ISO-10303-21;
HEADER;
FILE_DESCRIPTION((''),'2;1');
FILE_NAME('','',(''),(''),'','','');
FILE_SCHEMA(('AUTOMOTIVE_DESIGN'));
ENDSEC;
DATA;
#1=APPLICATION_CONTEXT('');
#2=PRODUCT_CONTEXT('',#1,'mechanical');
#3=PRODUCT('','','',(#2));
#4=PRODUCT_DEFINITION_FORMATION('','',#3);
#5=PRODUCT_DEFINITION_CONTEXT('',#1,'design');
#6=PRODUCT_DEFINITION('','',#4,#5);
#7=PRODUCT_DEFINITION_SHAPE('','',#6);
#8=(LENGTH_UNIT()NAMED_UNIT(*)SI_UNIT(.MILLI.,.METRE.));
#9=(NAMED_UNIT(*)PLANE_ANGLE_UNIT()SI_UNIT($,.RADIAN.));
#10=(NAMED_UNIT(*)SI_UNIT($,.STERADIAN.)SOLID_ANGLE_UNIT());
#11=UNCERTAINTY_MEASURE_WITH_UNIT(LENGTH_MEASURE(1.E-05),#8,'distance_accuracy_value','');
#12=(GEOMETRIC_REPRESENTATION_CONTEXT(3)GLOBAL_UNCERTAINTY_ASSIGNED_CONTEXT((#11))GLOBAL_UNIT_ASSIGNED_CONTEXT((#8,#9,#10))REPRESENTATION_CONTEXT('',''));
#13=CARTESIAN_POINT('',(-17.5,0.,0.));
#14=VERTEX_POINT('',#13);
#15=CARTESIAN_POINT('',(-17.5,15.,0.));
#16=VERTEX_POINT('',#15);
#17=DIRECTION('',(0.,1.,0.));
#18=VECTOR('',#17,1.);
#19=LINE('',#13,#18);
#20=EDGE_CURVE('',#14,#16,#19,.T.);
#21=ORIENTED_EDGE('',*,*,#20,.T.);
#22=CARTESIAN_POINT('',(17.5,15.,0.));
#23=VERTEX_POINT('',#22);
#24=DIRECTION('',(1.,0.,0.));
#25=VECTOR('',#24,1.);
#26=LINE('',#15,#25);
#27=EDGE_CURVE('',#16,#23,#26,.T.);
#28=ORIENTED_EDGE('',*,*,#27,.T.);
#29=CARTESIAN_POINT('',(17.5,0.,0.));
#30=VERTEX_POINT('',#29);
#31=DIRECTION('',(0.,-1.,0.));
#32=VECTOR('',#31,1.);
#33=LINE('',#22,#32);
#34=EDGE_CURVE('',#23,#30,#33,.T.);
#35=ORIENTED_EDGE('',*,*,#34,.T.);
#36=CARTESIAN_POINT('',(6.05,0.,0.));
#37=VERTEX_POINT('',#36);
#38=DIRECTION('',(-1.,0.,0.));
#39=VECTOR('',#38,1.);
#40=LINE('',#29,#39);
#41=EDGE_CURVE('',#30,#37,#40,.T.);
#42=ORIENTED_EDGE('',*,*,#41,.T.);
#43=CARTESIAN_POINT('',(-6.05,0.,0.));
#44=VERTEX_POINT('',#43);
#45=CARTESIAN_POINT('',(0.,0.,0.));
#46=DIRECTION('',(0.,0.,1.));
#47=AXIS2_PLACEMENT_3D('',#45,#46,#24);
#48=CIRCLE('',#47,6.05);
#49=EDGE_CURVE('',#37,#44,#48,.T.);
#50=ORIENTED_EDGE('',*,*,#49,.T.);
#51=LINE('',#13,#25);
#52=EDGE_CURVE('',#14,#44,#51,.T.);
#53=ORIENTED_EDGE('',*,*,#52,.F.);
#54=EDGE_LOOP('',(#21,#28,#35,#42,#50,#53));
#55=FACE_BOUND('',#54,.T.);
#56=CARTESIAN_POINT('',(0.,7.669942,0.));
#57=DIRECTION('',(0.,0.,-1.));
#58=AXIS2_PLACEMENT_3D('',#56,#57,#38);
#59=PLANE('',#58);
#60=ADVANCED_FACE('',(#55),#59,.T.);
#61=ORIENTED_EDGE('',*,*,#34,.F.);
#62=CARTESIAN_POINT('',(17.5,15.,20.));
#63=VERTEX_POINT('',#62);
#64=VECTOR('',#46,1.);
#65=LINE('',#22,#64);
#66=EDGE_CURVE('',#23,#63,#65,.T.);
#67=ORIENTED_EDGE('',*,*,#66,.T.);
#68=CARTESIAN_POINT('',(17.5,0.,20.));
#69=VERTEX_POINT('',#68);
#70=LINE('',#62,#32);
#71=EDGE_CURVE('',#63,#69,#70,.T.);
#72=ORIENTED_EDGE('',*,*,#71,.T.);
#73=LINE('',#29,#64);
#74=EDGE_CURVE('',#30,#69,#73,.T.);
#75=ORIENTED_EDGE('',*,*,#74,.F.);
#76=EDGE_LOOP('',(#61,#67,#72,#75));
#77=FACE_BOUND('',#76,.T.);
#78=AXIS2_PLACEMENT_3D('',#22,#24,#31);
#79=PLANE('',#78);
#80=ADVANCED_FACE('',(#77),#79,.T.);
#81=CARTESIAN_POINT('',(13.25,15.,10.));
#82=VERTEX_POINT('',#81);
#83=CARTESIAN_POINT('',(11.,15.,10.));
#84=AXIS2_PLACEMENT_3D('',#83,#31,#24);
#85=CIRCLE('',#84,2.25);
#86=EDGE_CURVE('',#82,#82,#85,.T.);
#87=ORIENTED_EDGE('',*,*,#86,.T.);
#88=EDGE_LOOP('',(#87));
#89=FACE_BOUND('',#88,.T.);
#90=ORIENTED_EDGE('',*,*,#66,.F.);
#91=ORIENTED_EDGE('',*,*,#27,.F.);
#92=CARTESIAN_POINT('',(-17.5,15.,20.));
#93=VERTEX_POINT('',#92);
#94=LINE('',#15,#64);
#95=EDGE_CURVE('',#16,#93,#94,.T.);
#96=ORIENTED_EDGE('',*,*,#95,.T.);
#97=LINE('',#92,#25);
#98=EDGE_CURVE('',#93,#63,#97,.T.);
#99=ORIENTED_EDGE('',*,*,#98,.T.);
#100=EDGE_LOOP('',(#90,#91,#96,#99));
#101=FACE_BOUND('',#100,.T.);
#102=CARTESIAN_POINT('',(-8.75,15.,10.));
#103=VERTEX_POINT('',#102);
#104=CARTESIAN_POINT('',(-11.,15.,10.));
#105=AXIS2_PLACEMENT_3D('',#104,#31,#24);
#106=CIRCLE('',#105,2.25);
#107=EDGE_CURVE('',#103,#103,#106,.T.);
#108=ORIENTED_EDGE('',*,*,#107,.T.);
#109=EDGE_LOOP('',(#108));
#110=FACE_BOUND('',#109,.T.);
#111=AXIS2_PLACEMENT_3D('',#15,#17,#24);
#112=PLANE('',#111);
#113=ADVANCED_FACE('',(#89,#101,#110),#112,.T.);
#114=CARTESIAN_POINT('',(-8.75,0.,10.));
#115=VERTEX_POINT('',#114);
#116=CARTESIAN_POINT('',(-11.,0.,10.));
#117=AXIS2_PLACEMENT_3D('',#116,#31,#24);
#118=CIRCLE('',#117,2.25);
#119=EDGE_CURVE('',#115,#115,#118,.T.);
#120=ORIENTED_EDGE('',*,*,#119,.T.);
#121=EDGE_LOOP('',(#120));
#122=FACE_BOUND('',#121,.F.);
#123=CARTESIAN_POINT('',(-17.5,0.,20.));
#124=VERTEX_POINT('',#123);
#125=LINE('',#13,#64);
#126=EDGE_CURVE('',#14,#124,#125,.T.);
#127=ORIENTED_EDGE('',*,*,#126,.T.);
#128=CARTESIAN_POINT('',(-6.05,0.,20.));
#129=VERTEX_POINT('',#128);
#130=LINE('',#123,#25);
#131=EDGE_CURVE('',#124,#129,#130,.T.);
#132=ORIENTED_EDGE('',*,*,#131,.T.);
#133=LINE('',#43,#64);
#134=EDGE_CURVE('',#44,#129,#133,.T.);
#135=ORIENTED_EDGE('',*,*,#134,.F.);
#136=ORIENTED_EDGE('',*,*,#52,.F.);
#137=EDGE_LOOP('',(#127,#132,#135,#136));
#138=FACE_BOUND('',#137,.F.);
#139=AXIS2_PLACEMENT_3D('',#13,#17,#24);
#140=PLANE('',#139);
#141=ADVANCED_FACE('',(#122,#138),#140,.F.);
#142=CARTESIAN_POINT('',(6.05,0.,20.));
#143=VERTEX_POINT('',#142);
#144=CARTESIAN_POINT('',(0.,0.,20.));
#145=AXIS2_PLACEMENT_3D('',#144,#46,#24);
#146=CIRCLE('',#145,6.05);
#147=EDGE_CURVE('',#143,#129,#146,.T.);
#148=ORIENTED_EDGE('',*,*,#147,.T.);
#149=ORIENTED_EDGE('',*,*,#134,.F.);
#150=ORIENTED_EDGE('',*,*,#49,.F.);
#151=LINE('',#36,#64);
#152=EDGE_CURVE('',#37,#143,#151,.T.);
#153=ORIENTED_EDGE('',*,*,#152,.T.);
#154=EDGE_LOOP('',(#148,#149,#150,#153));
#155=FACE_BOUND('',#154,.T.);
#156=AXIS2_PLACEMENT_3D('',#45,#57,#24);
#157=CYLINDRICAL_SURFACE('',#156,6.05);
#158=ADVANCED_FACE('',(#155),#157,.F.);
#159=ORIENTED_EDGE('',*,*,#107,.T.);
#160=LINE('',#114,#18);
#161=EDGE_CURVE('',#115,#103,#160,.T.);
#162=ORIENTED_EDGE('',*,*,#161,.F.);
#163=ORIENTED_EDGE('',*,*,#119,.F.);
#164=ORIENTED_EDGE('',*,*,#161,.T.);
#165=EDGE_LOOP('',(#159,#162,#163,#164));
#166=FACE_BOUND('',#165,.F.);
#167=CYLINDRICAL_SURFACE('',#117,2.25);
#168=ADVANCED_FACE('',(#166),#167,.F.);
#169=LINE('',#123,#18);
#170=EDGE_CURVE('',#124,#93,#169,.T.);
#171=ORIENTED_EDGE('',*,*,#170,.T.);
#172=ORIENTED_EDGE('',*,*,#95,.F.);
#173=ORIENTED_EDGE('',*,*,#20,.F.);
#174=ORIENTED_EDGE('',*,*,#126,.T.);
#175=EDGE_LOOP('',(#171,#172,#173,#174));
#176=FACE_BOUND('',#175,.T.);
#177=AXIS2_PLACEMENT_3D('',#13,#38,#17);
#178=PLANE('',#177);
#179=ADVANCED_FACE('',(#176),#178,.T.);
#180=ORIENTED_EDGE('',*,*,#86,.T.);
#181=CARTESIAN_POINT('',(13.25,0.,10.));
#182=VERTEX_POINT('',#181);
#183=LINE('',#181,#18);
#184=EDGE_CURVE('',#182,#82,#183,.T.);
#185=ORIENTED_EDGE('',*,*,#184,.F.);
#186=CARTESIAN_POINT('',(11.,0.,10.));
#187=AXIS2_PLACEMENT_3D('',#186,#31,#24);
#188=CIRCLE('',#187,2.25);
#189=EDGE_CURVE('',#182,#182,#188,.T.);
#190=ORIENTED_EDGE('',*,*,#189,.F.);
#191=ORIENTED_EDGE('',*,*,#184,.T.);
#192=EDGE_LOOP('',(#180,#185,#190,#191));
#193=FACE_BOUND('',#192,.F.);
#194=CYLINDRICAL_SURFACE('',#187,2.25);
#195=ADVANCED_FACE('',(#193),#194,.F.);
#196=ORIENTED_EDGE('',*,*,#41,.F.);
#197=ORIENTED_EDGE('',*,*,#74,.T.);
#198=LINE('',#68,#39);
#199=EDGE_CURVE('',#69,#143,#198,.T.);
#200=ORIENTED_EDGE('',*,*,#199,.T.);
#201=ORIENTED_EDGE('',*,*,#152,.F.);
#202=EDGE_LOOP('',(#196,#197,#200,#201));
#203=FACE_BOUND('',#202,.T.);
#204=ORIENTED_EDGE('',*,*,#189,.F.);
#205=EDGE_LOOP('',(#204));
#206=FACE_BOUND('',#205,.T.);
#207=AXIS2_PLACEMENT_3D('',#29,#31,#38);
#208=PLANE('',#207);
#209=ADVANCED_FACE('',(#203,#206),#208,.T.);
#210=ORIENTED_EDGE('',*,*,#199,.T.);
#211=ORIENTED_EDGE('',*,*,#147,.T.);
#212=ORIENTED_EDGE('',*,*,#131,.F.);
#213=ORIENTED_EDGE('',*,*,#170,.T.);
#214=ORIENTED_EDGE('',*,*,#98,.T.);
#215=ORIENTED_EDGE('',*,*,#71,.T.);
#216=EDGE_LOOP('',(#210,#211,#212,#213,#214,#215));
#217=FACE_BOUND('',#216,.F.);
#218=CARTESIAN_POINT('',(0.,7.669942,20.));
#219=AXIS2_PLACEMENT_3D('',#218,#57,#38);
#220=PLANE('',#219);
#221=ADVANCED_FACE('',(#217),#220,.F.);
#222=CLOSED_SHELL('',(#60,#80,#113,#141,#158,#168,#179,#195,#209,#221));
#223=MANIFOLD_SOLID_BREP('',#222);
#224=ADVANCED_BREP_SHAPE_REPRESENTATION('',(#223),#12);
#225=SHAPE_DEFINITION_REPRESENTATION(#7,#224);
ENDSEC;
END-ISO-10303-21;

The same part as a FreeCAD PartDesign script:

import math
import FreeCAD as App
import Part
import Sketcher
from FreeCAD import Vector
Q = App.Units.Quantity

doc = App.newDocument("Part")
body = doc.addObject("PartDesign::Body", "Body")

sketch1 = doc.addObject("Sketcher::SketchObject", "Sketch")
body.addObject(sketch1)
sketch1.AttachmentSupport = (doc.XY_Plane, [""])
sketch1.MapMode = "FlatFace"
sketch1.addGeometry(Part.LineSegment(Vector(18, 15, 0), Vector(-18, 15, 0)), False)
sketch1.addGeometry(Part.LineSegment(Vector(-18, 15, 0), Vector(-18, 0, 0)), False)
sketch1.addGeometry(Part.LineSegment(Vector(-18, 0, 0), Vector(-6, 0, 0)), False)
sketch1.addGeometry(Part.ArcOfCircle(Part.Circle(Vector(0, 0, 0), Vector(0, 0, 1), 6), math.radians(0), math.radians(180)), False)
sketch1.addGeometry(Part.LineSegment(Vector(6, 0, 0), Vector(18, 0, 0)), False)
sketch1.addGeometry(Part.LineSegment(Vector(18, 0, 0), Vector(18, 15, 0)), False)
sketch1.addConstraint(Sketcher.Constraint("Coincident", 0, 2, 1, 1))
sketch1.addConstraint(Sketcher.Constraint("Coincident", 1, 2, 2, 1))
sketch1.addConstraint(Sketcher.Constraint("Coincident", 2, 2, 3, 2))
sketch1.addConstraint(Sketcher.Constraint("Coincident", 3, 1, 4, 1))
sketch1.addConstraint(Sketcher.Constraint("Coincident", 4, 2, 5, 1))
sketch1.addConstraint(Sketcher.Constraint("Coincident", 5, 2, 0, 1))
sketch1.addConstraint(Sketcher.Constraint("Horizontal", 0))
sketch1.addConstraint(Sketcher.Constraint("Vertical", 1))
sketch1.addConstraint(Sketcher.Constraint("Horizontal", 2))
sketch1.addConstraint(Sketcher.Constraint("Horizontal", 4))
sketch1.addConstraint(Sketcher.Constraint("Vertical", 5))
sketch1.addConstraint(Sketcher.Constraint("Coincident", 3, 3, -1, 1))
sketch1.addConstraint(Sketcher.Constraint("Symmetric", 1, 2, 4, 2, -1, 1))
sketch1.addConstraint(Sketcher.Constraint("PointOnObject", 1, 2, -1))
sketch1.addConstraint(Sketcher.Constraint("DistanceX", 0, 2, 0, 1, Q("35 mm")))
sketch1.addConstraint(Sketcher.Constraint("DistanceY", 1, 2, 1, 1, Q("15 mm")))
sketch1.addConstraint(Sketcher.Constraint("Radius", 3, Q("6.05 mm")))
pad1 = doc.addObject("PartDesign::Pad", "Pad")
body.addObject(pad1)
pad1.Profile = sketch1
pad1.Length = 20

sketch2 = doc.addObject("Sketcher::SketchObject", "Sketch001")
body.addObject(sketch2)
sketch2.AttachmentSupport = (doc.XZ_Plane, [""])
sketch2.MapMode = "FlatFace"
sketch2.addGeometry(Part.Circle(Vector(-11, 10, 0), Vector(0, 0, 1), 2.2), False)
sketch2.addGeometry(Part.Circle(Vector(11, 10, 0), Vector(0, 0, 1), 2.2), False)
sketch2.addConstraint(Sketcher.Constraint("Equal", 0, 1))
sketch2.addConstraint(Sketcher.Constraint("Symmetric", 0, 3, 1, 3, -2))
sketch2.addConstraint(Sketcher.Constraint("Diameter", 0, Q("4.5 mm")))
sketch2.addConstraint(Sketcher.Constraint("DistanceX", 0, 3, -1, 1, Q("11 mm")))
sketch2.addConstraint(Sketcher.Constraint("DistanceY", -1, 1, 0, 3, Q("10 mm")))
pocket1 = doc.addObject("PartDesign::Pocket", "Pocket")
body.addObject(pocket1)
pocket1.Profile = sketch2
pocket1.Type = "ThroughAll"

doc.recompute()
